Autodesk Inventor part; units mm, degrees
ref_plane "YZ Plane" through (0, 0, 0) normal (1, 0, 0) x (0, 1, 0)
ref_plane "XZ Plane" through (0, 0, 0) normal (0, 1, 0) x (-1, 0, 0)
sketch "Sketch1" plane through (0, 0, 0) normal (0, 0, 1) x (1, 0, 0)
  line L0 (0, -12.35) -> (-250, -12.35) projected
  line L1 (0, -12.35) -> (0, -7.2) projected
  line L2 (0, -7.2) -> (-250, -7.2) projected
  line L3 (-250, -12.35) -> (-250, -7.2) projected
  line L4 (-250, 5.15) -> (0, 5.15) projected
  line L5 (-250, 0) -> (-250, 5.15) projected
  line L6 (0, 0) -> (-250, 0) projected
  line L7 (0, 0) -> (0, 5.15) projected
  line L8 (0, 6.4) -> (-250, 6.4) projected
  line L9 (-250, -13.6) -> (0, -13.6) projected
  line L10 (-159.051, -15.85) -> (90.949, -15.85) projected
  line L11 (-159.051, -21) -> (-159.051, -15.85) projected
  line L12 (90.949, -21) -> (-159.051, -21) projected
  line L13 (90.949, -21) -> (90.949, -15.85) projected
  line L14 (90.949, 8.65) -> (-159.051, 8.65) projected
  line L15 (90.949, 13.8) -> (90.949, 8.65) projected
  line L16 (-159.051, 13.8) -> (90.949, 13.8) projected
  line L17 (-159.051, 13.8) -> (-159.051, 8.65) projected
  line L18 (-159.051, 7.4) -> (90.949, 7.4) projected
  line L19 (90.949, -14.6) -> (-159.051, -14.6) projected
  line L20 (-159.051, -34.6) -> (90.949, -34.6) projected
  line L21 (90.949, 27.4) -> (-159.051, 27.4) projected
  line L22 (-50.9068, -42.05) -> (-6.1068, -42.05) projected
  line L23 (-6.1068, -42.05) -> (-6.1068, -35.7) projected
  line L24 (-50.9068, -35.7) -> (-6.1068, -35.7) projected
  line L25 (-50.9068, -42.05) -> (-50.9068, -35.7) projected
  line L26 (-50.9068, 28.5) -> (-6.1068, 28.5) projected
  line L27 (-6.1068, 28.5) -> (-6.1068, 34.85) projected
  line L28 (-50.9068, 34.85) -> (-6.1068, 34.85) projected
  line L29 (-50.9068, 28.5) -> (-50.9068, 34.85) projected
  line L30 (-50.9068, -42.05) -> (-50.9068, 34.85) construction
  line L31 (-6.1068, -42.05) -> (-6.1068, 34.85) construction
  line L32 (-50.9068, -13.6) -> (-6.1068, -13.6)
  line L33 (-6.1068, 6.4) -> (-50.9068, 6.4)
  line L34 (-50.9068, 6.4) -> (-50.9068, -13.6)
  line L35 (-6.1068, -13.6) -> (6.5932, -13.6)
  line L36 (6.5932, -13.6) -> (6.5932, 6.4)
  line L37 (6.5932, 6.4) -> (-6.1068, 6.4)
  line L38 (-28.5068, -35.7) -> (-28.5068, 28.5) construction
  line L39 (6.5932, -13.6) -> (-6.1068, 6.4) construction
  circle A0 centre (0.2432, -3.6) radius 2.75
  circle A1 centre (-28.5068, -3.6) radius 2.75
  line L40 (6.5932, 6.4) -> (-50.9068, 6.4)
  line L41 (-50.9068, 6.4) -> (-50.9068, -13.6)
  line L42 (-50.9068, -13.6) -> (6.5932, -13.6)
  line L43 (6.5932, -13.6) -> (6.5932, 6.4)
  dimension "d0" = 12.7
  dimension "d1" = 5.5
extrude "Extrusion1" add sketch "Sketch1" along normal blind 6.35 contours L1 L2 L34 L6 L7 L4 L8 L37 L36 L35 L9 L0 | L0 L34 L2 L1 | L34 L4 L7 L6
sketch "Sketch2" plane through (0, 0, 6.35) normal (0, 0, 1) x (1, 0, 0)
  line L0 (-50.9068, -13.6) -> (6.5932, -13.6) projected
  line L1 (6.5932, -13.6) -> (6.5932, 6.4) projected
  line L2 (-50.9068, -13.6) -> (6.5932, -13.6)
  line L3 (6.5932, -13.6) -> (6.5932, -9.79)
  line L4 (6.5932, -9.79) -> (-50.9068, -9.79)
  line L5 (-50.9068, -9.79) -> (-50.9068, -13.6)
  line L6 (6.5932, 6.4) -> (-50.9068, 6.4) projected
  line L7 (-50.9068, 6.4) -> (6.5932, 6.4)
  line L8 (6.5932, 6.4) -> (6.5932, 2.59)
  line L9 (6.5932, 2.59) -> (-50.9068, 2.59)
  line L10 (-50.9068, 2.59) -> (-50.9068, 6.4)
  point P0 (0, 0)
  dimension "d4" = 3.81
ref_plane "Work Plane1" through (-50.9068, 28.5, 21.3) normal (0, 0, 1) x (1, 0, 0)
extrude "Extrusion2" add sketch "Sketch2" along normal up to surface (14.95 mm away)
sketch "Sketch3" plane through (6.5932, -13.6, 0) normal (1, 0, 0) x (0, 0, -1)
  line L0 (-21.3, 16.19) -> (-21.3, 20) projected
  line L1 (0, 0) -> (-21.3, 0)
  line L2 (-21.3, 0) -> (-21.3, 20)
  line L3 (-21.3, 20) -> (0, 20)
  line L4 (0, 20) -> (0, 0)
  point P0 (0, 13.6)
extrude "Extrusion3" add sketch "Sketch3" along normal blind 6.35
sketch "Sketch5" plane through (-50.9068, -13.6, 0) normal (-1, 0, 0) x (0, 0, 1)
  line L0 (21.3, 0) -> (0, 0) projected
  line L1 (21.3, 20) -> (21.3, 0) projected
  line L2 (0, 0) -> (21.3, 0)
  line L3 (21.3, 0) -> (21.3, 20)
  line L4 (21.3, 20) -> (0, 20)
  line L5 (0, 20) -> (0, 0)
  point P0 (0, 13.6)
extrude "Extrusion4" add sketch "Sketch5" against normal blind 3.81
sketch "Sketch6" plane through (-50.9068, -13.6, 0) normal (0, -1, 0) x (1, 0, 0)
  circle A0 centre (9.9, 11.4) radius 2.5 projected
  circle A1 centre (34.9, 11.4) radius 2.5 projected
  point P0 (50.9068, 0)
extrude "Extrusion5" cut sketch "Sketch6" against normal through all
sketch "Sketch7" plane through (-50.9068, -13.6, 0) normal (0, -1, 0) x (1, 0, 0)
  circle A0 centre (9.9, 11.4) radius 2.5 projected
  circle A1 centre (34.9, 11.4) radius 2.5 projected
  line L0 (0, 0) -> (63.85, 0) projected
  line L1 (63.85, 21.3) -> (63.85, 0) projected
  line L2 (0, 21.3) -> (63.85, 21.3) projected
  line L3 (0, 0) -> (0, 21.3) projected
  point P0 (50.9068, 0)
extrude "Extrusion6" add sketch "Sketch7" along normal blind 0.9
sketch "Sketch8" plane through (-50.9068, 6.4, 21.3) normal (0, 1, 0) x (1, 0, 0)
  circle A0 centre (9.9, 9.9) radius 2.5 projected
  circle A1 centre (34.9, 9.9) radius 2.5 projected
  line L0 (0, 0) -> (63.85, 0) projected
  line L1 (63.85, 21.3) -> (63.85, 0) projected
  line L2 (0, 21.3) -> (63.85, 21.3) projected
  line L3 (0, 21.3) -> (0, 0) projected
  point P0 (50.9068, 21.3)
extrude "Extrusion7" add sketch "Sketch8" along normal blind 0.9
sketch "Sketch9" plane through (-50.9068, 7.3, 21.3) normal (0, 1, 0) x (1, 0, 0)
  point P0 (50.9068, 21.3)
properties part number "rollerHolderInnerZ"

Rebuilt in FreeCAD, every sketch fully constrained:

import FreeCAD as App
import Part
import Sketcher

doc = App.newDocument("Part")
params = doc.addObject("Spreadsheet::Sheet", "Params")
for row, (alias, value) in enumerate([
    ("sketch1_diameter", "5.5 mm"),
    ("sketch1_height", "20 mm"),
    ("sketch1_width", "57.5 mm"),
    ("pad1_length", "6.35 mm"),
    ("sketch2_height", "3.81 mm"),
    ("sketch2_width", "57.5 mm"),
    ("pad2_length", "14.95 mm"),
    ("sketch3_width", "20 mm"),
    ("sketch3_height", "21.3 mm"),
    ("pad3_length", "6.35 mm"),
    ("sketch4_width", "20 mm"),
    ("sketch4_height", "21.3 mm"),
    ("pad4_length", "3.81 mm"),
    ("sketch5_diameter", "5 mm"),
    ("sketch6_diameter", "5 mm"),
    ("sketch6_height", "21.3 mm"),
    ("sketch6_width", "63.85 mm"),
    ("pad5_length", "0.9 mm"),
    ("sketch7_diameter", "5 mm"),
    ("sketch7_height", "21.3 mm"),
    ("sketch7_width", "63.85 mm"),
    ("pad6_length", "0.9 mm"),
], start=1):
    params.set(f"A{row}", alias)
    params.set(f"B{row}", "=" + value)
    params.setAlias(f"B{row}", alias)

body = doc.addObject("PartDesign::Body", "Body")

# Sketch on XY plane
sketch1 = doc.addObject("Sketcher::SketchObject", "Sketch")
body.addObject(sketch1)
sketch1.AttachmentSupport = (doc.XY_Plane, [""])
sketch1.MapMode = "FlatFace"
sketch1.addGeometry([
    Part.LineSegment(App.Vector(-50.9, -13.6, 0), App.Vector(6.6, -13.6, 0)),  # 0
    Part.LineSegment(App.Vector(6.6, -13.6, 0), App.Vector(6.6, 6.4, 0)),  # 1
    Part.LineSegment(App.Vector(6.6, 6.4, 0), App.Vector(-50.9, 6.4, 0)),  # 2
    Part.LineSegment(App.Vector(-50.9, 6.4, 0), App.Vector(-50.9, -13.6, 0)),  # 3
    Part.Circle(App.Vector(-28.5, -3.6, 0), App.Vector(0, 0, 1), 2.8),  # 4
    Part.Circle(App.Vector(0.2, -3.6, 0), App.Vector(0, 0, 1), 2.8),  # 5
], False)
sketch1.addConstraint([
    Sketcher.Constraint("Coincident", 0, 2, 1, 1),
    Sketcher.Constraint("Coincident", 1, 2, 2, 1),
    Sketcher.Constraint("Coincident", 2, 2, 3, 1),
    Sketcher.Constraint("Coincident", 3, 2, 0, 1),
    Sketcher.Constraint("Horizontal", 0),
    Sketcher.Constraint("Vertical", 1),
    Sketcher.Constraint("Horizontal", 2),
    Sketcher.Constraint("Vertical", 3),
    Sketcher.Constraint("Equal", 4, 5),
    Sketcher.Constraint("Horizontal", 4, 3, 5, 3),
    Sketcher.Constraint("Diameter", 4, 5.5),
    Sketcher.Constraint("DistanceY", 1, 1, 1, 2, 20.0),
    Sketcher.Constraint("DistanceX", 0, 1, 0, 2, 57.5),
    Sketcher.Constraint("DistanceY", 0, 2, 5, 3, 10.0),
    Sketcher.Constraint("DistanceY", 4, 3, -1, 1, 3.6),
    Sketcher.Constraint("DistanceX", 4, 3, 0, 2, 35.1),
    Sketcher.Constraint("DistanceX", 4, 3, 5, 3, 28.75),
    Sketcher.Constraint("DistanceX", 4, 3, -1, 1, 28.5068),
])
sketch1.setExpression("Constraints[10]", "Params.sketch1_diameter")
sketch1.setExpression("Constraints[11]", "Params.sketch1_height")
sketch1.setExpression("Constraints[12]", "Params.sketch1_width")
pad1 = doc.addObject("PartDesign::Pad", "Pad")
body.addObject(pad1)
pad1.Profile = sketch1
pad1.setExpression("Length", "Params.pad1_length")

# Sketch on XY plane
sketch2 = doc.addObject("Sketcher::SketchObject", "Sketch001")
body.addObject(sketch2)
sketch2.AttachmentSupport = (doc.XY_Plane, [""])
sketch2.MapMode = "FlatFace"
sketch2.AttachmentOffset = App.Placement(App.Vector(0, 0, 6.35), App.Rotation())
sketch2.addGeometry([
    Part.LineSegment(App.Vector(-50.9, -9.8, 0), App.Vector(-50.9, -13.6, 0)),  # 0
    Part.LineSegment(App.Vector(-50.9, -13.6, 0), App.Vector(6.6, -13.6, 0)),  # 1
    Part.LineSegment(App.Vector(6.6, -13.6, 0), App.Vector(6.6, -9.8, 0)),  # 2
    Part.LineSegment(App.Vector(6.6, -9.8, 0), App.Vector(-50.9, -9.8, 0)),  # 3
    Part.LineSegment(App.Vector(-50.9, 2.6, 0), App.Vector(6.6, 2.6, 0)),  # 4
    Part.LineSegment(App.Vector(6.6, 2.6, 0), App.Vector(6.6, 6.4, 0)),  # 5
    Part.LineSegment(App.Vector(6.6, 6.4, 0), App.Vector(-50.9, 6.4, 0)),  # 6
    Part.LineSegment(App.Vector(-50.9, 6.4, 0), App.Vector(-50.9, 2.6, 0)),  # 7
], False)
sketch2.addConstraint([
    Sketcher.Constraint("Coincident", 0, 2, 1, 1),
    Sketcher.Constraint("Coincident", 1, 2, 2, 1),
    Sketcher.Constraint("Coincident", 2, 2, 3, 1),
    Sketcher.Constraint("Coincident", 3, 2, 0, 1),
    Sketcher.Constraint("Coincident", 4, 2, 5, 1),
    Sketcher.Constraint("Coincident", 5, 2, 6, 1),
    Sketcher.Constraint("Coincident", 6, 2, 7, 1),
    Sketcher.Constraint("Coincident", 7, 2, 4, 1),
    Sketcher.Constraint("Vertical", 0),
    Sketcher.Constraint("Horizontal", 1),
    Sketcher.Constraint("Vertical", 2),
    Sketcher.Constraint("Horizontal", 3),
    Sketcher.Constraint("Horizontal", 4),
    Sketcher.Constraint("Vertical", 5),
    Sketcher.Constraint("Horizontal", 6),
    Sketcher.Constraint("Vertical", 7),
    Sketcher.Constraint("Vertical", 2, 2, 4, 2),
    Sketcher.Constraint("Vertical", 3, 2, 6, 2),
    Sketcher.Constraint("Equal", 2, 5),
    Sketcher.Constraint("DistanceY", 0, 2, 0, 1, 3.81),
    Sketcher.Constraint("DistanceX", 1, 1, 1, 2, 57.5),
    Sketcher.Constraint("DistanceY", 1, 2, 5, 2, 20.0),
    Sketcher.Constraint("DistanceY", 0, 2, -1, 1, 13.6),
    Sketcher.Constraint("DistanceX", 0, 2, -1, 1, 50.9068),
])
sketch2.setExpression("Constraints[19]", "Params.sketch2_height")
sketch2.setExpression("Constraints[20]", "Params.sketch2_width")
pad2 = doc.addObject("PartDesign::Pad", "Pad001")
body.addObject(pad2)
pad2.Profile = sketch2
pad2.setExpression("Length", "Params.pad2_length")

# Sketch on YZ plane
sketch3 = doc.addObject("Sketcher::SketchObject", "Sketch002")
body.addObject(sketch3)
sketch3.AttachmentSupport = (doc.YZ_Plane, [""])
sketch3.MapMode = "FlatFace"
sketch3.AttachmentOffset = App.Placement(App.Vector(0, 0, 6.5932), App.Rotation())
sketch3.addGeometry([
    Part.LineSegment(App.Vector(6, 21, 0), App.Vector(-14, 21, 0)),
    Part.LineSegment(App.Vector(-14, 21, 0), App.Vector(-14, 0, 0)),
    Part.LineSegment(App.Vector(-14, 0, 0), App.Vector(6, 0, 0)),
    Part.LineSegment(App.Vector(6, 0, 0), App.Vector(6, 21, 0)),
], False)
sketch3.addConstraint([
    Sketcher.Constraint("Coincident", 0, 2, 1, 1),
    Sketcher.Constraint("Coincident", 1, 2, 2, 1),
    Sketcher.Constraint("Coincident", 2, 2, 3, 1),
    Sketcher.Constraint("Coincident", 3, 2, 0, 1),
    Sketcher.Constraint("Horizontal", 0),
    Sketcher.Constraint("Vertical", 1),
    Sketcher.Constraint("Horizontal", 2),
    Sketcher.Constraint("Vertical", 3),
    Sketcher.Constraint("PointOnObject", 1, 2, -1),
    Sketcher.Constraint("DistanceX", 0, 2, 0, 1, 20.0),
    Sketcher.Constraint("DistanceY", 1, 2, 1, 1, 21.3),
    Sketcher.Constraint("DistanceX", 0, 2, -1, 1, 13.6),
])
sketch3.setExpression("Constraints[9]", "Params.sketch3_width")
sketch3.setExpression("Constraints[10]", "Params.sketch3_height")
pad3 = doc.addObject("PartDesign::Pad", "Pad002")
body.addObject(pad3)
pad3.Profile = sketch3
pad3.setExpression("Length", "Params.pad3_length")

# Sketch on YZ plane
sketch4 = doc.addObject("Sketcher::SketchObject", "Sketch003")
body.addObject(sketch4)
sketch4.AttachmentSupport = (doc.YZ_Plane, [""])
sketch4.MapMode = "FlatFace"
sketch4.AttachmentOffset = App.Placement(App.Vector(0, 0, -50.9068), App.Rotation())
sketch4.addGeometry([
    Part.LineSegment(App.Vector(-14, 0, 0), App.Vector(-14, 21, 0)),
    Part.LineSegment(App.Vector(-14, 21, 0), App.Vector(6, 21, 0)),
    Part.LineSegment(App.Vector(6, 21, 0), App.Vector(6, 0, 0)),
    Part.LineSegment(App.Vector(6, 0, 0), App.Vector(-14, 0, 0)),
], False)
sketch4.addConstraint([
    Sketcher.Constraint("Coincident", 0, 2, 1, 1),
    Sketcher.Constraint("Coincident", 1, 2, 2, 1),
    Sketcher.Constraint("Coincident", 2, 2, 3, 1),
    Sketcher.Constraint("Coincident", 3, 2, 0, 1),
    Sketcher.Constraint("Vertical", 0),
    Sketcher.Constraint("Horizontal", 1),
    Sketcher.Constraint("Vertical", 2),
    Sketcher.Constraint("Horizontal", 3),
    Sketcher.Constraint("PointOnObject", 2, 2, -1),
    Sketcher.Constraint("DistanceX", 1, 1, 1, 2, 20.0),
    Sketcher.Constraint("DistanceY", 0, 1, 0, 2, 21.3),
    Sketcher.Constraint("DistanceX", 0, 2, -1, 1, 13.6),
])
sketch4.setExpression("Constraints[9]", "Params.sketch4_width")
sketch4.setExpression("Constraints[10]", "Params.sketch4_height")
pad4 = doc.addObject("PartDesign::Pad", "Pad003")
body.addObject(pad4)
pad4.Profile = sketch4
pad4.setExpression("Length", "Params.pad4_length")

# Sketch on XZ plane
sketch5 = doc.addObject("Sketcher::SketchObject", "Sketch004")
body.addObject(sketch5)
sketch5.AttachmentSupport = (doc.XZ_Plane, [""])
sketch5.MapMode = "FlatFace"
sketch5.AttachmentOffset = App.Placement(App.Vector(0, 0, 13.6), App.Rotation())
sketch5.addGeometry([
    Part.Circle(App.Vector(-41, 11.4, 0), App.Vector(0, 0, 1), 2.5),
    Part.Circle(App.Vector(-16, 11.4, 0), App.Vector(0, 0, 1), 2.5),
], False)
sketch5.addConstraint([
    Sketcher.Constraint("Equal", 0, 1),
    Sketcher.Constraint("Horizontal", 0, 3, 1, 3),
    Sketcher.Constraint("Diameter", 0, 5.0),
    Sketcher.Constraint("DistanceX", 0, 3, 1, 3, 25.0),
    Sketcher.Constraint("DistanceY", -1, 1, 0, 3, 11.4),
    Sketcher.Constraint("DistanceX", 0, 3, -1, 1, 41.0068),
])
sketch5.setExpression("Constraints[2]", "Params.sketch5_diameter")
pocket1 = doc.addObject("PartDesign::Pocket", "Pocket")
body.addObject(pocket1)
pocket1.Profile = sketch5
pocket1.Type = "ThroughAll"

# Sketch on XZ plane
sketch6 = doc.addObject("Sketcher::SketchObject", "Sketch005")
body.addObject(sketch6)
sketch6.AttachmentSupport = (doc.XZ_Plane, [""])
sketch6.MapMode = "FlatFace"
sketch6.AttachmentOffset = App.Placement(App.Vector(0, 0, 13.6), App.Rotation())
sketch6.addGeometry([
    Part.LineSegment(App.Vector(-50.9, 21.3, 0), App.Vector(-50.9, 0, 0)),  # 0
    Part.LineSegment(App.Vector(-50.9, 0, 0), App.Vector(12.9, 0, 0)),  # 1
    Part.LineSegment(App.Vector(12.9, 0, 0), App.Vector(12.9, 21.3, 0)),  # 2
    Part.LineSegment(App.Vector(12.9, 21.3, 0), App.Vector(-50.9, 21.3, 0)),  # 3
    Part.Circle(App.Vector(-41, 11.4, 0), App.Vector(0, 0, 1), 2.5),  # 4
    Part.Circle(App.Vector(-16, 11.4, 0), App.Vector(0, 0, 1), 2.5),  # 5
], False)
sketch6.addConstraint([
    Sketcher.Constraint("Coincident", 0, 2, 1, 1),
    Sketcher.Constraint("Coincident", 1, 2, 2, 1),
    Sketcher.Constraint("Coincident", 2, 2, 3, 1),
    Sketcher.Constraint("Coincident", 3, 2, 0, 1),
    Sketcher.Constraint("Vertical", 0),
    Sketcher.Constraint("Horizontal", 1),
    Sketcher.Constraint("Vertical", 2),
    Sketcher.Constraint("Horizontal", 3),
    Sketcher.Constraint("Equal", 4, 5),
    Sketcher.Constraint("PointOnObject", 0, 2, -1),
    Sketcher.Constraint("Horizontal", 4, 3, 5, 3),
    Sketcher.Constraint("Diameter", 4, 5.0),
    Sketcher.Constraint("DistanceY", 0, 2, 0, 1, 21.3),
    Sketcher.Constraint("DistanceX", 4, 3, 5, 3, 25.0),
    Sketcher.Constraint("DistanceX", 1, 1, 1, 2, 63.85),
    Sketcher.Constraint("DistanceY", -1, 1, 4, 3, 11.4),
    Sketcher.Constraint("DistanceX", 0, 2, 4, 3, 9.9),
    Sketcher.Constraint("DistanceX", 4, 3, -1, 1, 41.0068),
])
sketch6.setExpression("Constraints[11]", "Params.sketch6_diameter")
sketch6.setExpression("Constraints[12]", "Params.sketch6_height")
sketch6.setExpression("Constraints[14]", "Params.sketch6_width")
pad5 = doc.addObject("PartDesign::Pad", "Pad004")
body.addObject(pad5)
pad5.Profile = sketch6
pad5.setExpression("Length", "Params.pad5_length")

# Sketch on XZ plane
sketch7 = doc.addObject("Sketcher::SketchObject", "Sketch006")
body.addObject(sketch7)
sketch7.AttachmentSupport = (doc.XZ_Plane, [""])
sketch7.MapMode = "FlatFace"
sketch7.AttachmentOffset = App.Placement(App.Vector(0, 0, -6.4), App.Rotation())
sketch7.addGeometry([
    Part.LineSegment(App.Vector(-50.9, 0, 0), App.Vector(-50.9, 21.3, 0)),  # 0
    Part.LineSegment(App.Vector(-50.9, 21.3, 0), App.Vector(12.9, 21.3, 0)),  # 1
    Part.LineSegment(App.Vector(12.9, 21.3, 0), App.Vector(12.9, 0, 0)),  # 2
    Part.LineSegment(App.Vector(12.9, 0, 0), App.Vector(-50.9, 0, 0)),  # 3
    Part.Circle(App.Vector(-41, 11.4, 0), App.Vector(0, 0, 1), 2.5),  # 4
    Part.Circle(App.Vector(-16, 11.4, 0), App.Vector(0, 0, 1), 2.5),  # 5
], False)
sketch7.addConstraint([
    Sketcher.Constraint("Coincident", 0, 2, 1, 1),
    Sketcher.Constraint("Coincident", 1, 2, 2, 1),
    Sketcher.Constraint("Coincident", 2, 2, 3, 1),
    Sketcher.Constraint("Coincident", 3, 2, 0, 1),
    Sketcher.Constraint("Vertical", 0),
    Sketcher.Constraint("Horizontal", 1),
    Sketcher.Constraint("Vertical", 2),
    Sketcher.Constraint("Horizontal", 3),
    Sketcher.Constraint("Equal", 4, 5),
    Sketcher.Constraint("PointOnObject", 2, 2, -1),
    Sketcher.Constraint("Horizontal", 4, 3, 5, 3),
    Sketcher.Constraint("Diameter", 4, 5.0),
    Sketcher.Constraint("DistanceY", 0, 1, 0, 2, 21.3),
    Sketcher.Constraint("DistanceX", 4, 3, 5, 3, 25.0),
    Sketcher.Constraint("DistanceX", 1, 1, 1, 2, 63.85),
    Sketcher.Constraint("DistanceY", -1, 1, 4, 3, 11.4),
    Sketcher.Constraint("DistanceX", 0, 2, 4, 3, 9.9),
    Sketcher.Constraint("DistanceX", 4, 3, -1, 1, 41.0068),
])
sketch7.setExpression("Constraints[11]", "Params.sketch7_diameter")
sketch7.setExpression("Constraints[12]", "Params.sketch7_height")
sketch7.setExpression("Constraints[14]", "Params.sketch7_width")
pad6 = doc.addObject("PartDesign::Pad", "Pad005")
body.addObject(pad6)
pad6.Profile = sketch7
pad6.setExpression("Length", "Params.pad6_length")
pad6.Reversed = True

doc.recompute()
